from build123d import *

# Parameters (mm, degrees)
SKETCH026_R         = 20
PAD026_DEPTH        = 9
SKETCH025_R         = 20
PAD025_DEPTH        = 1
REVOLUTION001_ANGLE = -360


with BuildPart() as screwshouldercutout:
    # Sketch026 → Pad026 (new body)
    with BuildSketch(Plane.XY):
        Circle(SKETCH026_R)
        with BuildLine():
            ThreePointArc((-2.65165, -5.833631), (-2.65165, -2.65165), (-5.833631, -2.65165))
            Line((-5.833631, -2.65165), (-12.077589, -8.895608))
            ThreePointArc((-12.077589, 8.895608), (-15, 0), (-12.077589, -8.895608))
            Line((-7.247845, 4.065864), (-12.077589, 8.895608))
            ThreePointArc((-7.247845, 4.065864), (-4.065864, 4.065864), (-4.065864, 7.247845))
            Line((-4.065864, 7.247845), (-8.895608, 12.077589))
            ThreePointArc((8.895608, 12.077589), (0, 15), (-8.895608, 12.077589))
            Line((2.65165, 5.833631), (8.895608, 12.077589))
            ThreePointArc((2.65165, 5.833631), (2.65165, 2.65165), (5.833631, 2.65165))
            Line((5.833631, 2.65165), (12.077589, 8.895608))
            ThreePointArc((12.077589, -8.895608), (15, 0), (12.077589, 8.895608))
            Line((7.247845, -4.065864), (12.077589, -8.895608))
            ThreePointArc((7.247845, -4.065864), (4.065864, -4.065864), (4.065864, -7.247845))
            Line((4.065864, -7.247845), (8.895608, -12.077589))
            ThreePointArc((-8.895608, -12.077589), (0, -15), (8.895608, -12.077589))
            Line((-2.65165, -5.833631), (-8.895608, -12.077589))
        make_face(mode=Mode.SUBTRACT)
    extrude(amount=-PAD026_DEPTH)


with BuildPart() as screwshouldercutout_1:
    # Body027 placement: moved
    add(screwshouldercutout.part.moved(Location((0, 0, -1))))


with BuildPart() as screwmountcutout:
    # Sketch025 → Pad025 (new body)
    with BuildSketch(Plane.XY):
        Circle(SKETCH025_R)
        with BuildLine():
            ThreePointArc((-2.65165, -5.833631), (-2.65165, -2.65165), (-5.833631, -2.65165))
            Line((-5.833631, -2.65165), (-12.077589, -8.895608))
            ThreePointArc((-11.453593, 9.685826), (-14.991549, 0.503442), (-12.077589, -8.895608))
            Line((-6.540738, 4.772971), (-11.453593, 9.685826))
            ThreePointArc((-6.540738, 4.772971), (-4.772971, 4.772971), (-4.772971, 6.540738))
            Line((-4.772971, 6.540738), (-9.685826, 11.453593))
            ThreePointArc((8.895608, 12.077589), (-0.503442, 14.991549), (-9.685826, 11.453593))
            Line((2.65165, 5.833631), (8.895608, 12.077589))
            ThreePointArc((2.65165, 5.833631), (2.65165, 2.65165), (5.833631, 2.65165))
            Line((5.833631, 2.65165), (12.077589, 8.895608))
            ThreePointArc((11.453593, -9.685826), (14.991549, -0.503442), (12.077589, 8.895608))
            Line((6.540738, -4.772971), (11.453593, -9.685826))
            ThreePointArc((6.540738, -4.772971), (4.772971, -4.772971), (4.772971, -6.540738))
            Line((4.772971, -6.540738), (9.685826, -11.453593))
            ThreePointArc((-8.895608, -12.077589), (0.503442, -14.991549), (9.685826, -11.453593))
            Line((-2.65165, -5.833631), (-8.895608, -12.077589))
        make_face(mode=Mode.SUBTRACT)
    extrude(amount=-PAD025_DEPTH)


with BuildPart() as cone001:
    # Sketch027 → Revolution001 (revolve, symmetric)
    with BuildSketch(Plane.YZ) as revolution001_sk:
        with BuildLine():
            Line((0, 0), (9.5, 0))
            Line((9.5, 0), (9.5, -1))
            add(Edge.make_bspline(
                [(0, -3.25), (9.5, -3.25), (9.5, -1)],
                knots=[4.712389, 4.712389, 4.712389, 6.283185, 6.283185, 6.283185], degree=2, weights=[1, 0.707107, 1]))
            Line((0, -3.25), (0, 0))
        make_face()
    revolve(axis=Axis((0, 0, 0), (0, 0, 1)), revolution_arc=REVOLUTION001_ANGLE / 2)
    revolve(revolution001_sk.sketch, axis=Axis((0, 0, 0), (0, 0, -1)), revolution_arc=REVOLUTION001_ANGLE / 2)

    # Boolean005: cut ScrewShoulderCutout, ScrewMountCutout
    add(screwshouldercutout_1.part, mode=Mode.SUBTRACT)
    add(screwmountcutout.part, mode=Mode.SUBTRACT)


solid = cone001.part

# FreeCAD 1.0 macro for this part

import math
import FreeCAD as App
import Part
import Sketcher
Q = App.Units.Quantity

doc = App.newDocument("Part")
params = doc.addObject("Spreadsheet::Sheet", "Params")
for row, (alias, value) in enumerate([
    ("sketch1_diameter", "40 mm"),
    ("sketch1_radius", "15 mm"),
    ("sketch1_radius2", "2.25 mm"),
    ("pad1_length", "9 mm"),
    ("sketch2_diameter", "40 mm"),
    ("sketch2_radius", "15.000002 mm"),
    ("sketch2_radius2", "2.25 mm"),
    ("sketch2_radius3", "1.25 mm"),
    ("pad2_length", "1 mm"),
    ("revolution_angle", "180 deg"),
    ("revolution2_angle", "180 deg"),
], start=1):
    params.set(f"A{row}", alias)
    params.set(f"B{row}", "=" + value)
    params.setAlias(f"B{row}", alias)

body = doc.addObject("PartDesign::Body", "Body")

# Sketch on XY plane
sketch1 = body.newObject("Sketcher::SketchObject", "Sketch")
sketch1.AttachmentSupport = (doc.getObject("XY_Plane"), [""])
sketch1.MapMode = "FlatFace"
sketch1.addGeometry([
    Part.Circle(App.Vector(0, 0, 0), App.Vector(0, 0, 1), 20),  # 0
    Part.LineSegment(App.Vector(-8.9, -12.1, 0), App.Vector(-2.7, -5.8, 0)),  # 1
    Part.ArcOfCircle(Part.Circle(App.Vector(-4.2, -4.2, 0), App.Vector(0, 0, 1), 2.3), math.radians(-45), math.radians(135)),  # 2
    Part.LineSegment(App.Vector(-5.8, -2.7, 0), App.Vector(-12.1, -8.9, 0)),  # 3
    Part.ArcOfCircle(Part.Circle(App.Vector(0, 0, 0), App.Vector(0, 0, 1), 15), math.radians(144), math.radians(216)),  # 4
    Part.LineSegment(App.Vector(-12.1, 8.9, 0), App.Vector(-7.2, 4.1, 0)),  # 5
    Part.ArcOfCircle(Part.Circle(App.Vector(-5.7, 5.7, 0), App.Vector(0, 0, 1), 2.3), math.radians(-135), math.radians(45)),  # 6
    Part.LineSegment(App.Vector(-4.1, 7.2, 0), App.Vector(-8.9, 12.1, 0)),  # 7
    Part.ArcOfCircle(Part.Circle(App.Vector(0, 0, 0), App.Vector(0, 0, 1), 15), math.radians(54), math.radians(126)),  # 8
    Part.LineSegment(App.Vector(8.9, 12.1, 0), App.Vector(2.7, 5.8, 0)),  # 9
    Part.ArcOfCircle(Part.Circle(App.Vector(4.2, 4.2, 0), App.Vector(0, 0, 1), 2.3), math.radians(135), math.radians(315)),  # 10
    Part.LineSegment(App.Vector(5.8, 2.7, 0), App.Vector(12.1, 8.9, 0)),  # 11
    Part.ArcOfCircle(Part.Circle(App.Vector(0, 0, 0), App.Vector(0, 0, 1), 15), math.radians(-36), math.radians(36)),  # 12
    Part.LineSegment(App.Vector(12.1, -8.9, 0), App.Vector(7.2, -4.1, 0)),  # 13
    Part.ArcOfCircle(Part.Circle(App.Vector(5.7, -5.7, 0), App.Vector(0, 0, 1), 2.3), math.radians(45), math.radians(225)),  # 14
    Part.LineSegment(App.Vector(4.1, -7.2, 0), App.Vector(8.9, -12.1, 0)),  # 15
    Part.ArcOfCircle(Part.Circle(App.Vector(0, 0, 0), App.Vector(0, 0, 1), 15), math.radians(-126), math.radians(-54)),  # 16
], False)
sketch1.addConstraint([
    Sketcher.Constraint("Tangent", 1, 2, 2, 1),
    Sketcher.Constraint("Tangent", 2, 2, 3, 1),
    Sketcher.Constraint("Coincident", 3, 2, 4, 2),
    Sketcher.Constraint("Coincident", 4, 1, 5, 1),
    Sketcher.Constraint("Tangent", 5, 2, 6, 1),
    Sketcher.Constraint("Tangent", 6, 2, 7, 1),
    Sketcher.Constraint("Coincident", 7, 2, 8, 2),
    Sketcher.Constraint("Coincident", 8, 1, 9, 1),
    Sketcher.Constraint("Tangent", 9, 2, 10, 1),
    Sketcher.Constraint("Tangent", 10, 2, 11, 1),
    Sketcher.Constraint("Coincident", 11, 2, 12, 2),
    Sketcher.Constraint("Coincident", 12, 1, 13, 1),
    Sketcher.Constraint("Tangent", 13, 2, 14, 1),
    Sketcher.Constraint("Tangent", 14, 2, 15, 1),
    Sketcher.Constraint("Coincident", 15, 2, 16, 2),
    Sketcher.Constraint("Coincident", 16, 1, 1, 1),
    Sketcher.Constraint("Coincident", 0, 3, -1, 1),
    Sketcher.Constraint("Coincident", 4, 3, -1, 1),
    Sketcher.Constraint("Coincident", 8, 3, -1, 1),
    Sketcher.Constraint("Coincident", 12, 3, -1, 1),
    Sketcher.Constraint("Coincident", 16, 3, -1, 1),
    Sketcher.Constraint("Equal", 2, 6),
    Sketcher.Constraint("Equal", 4, 8),
    Sketcher.Constraint("Equal", 6, 10),
    Sketcher.Constraint("Equal", 8, 12),
    Sketcher.Constraint("Equal", 10, 14),
    Sketcher.Constraint("Equal", 12, 16),
    Sketcher.Constraint("Symmetric", 2, 3, 10, 3, -1, 1),
    Sketcher.Constraint("Symmetric", 6, 3, 14, 3, -1, 1),
    Sketcher.Constraint("Parallel", 1, 3),
    Sketcher.Constraint("Perpendicular", 3, 5),
    Sketcher.Constraint("Parallel", 5, 7),
    Sketcher.Constraint("Perpendicular", 7, 9),
    Sketcher.Constraint("Parallel", 9, 11),
    Sketcher.Constraint("Perpendicular", 11, 13),
    Sketcher.Constraint("Parallel", 13, 15),
    Sketcher.Constraint("Horizontal", 7, 2, 8, 1),
    Sketcher.Constraint("Equal", 1, 3),
    Sketcher.Constraint("Equal", 5, 7),
    Sketcher.Constraint("Diameter", 0, 40.0),
    Sketcher.Constraint("Radius", 4, 15.0),
    Sketcher.Constraint("Radius", 2, 2.25),
    Sketcher.Constraint("Distance", 1, 8.83029),
    Sketcher.Constraint("Distance", 5, 6.830289),
])
sketch1.setExpression("Constraints[39]", "Params.sketch1_diameter")
sketch1.setExpression("Constraints[40]", "Params.sketch1_radius")
sketch1.setExpression("Constraints[41]", "Params.sketch1_radius2")
pad1 = body.newObject("PartDesign::Pad", "Pad")
pad1.Profile = sketch1
pad1.setExpression("Length", "Params.pad1_length")
pad1.Reversed = True
body2 = doc.addObject("PartDesign::Body", "Body001")
doc.recompute()

body.Placement = App.Placement(App.Vector(0, 0, -1), App.Rotation(App.Vector(0, 0, 1), 0))
boolean = body2.newObject("PartDesign::Boolean", "Boolean")
boolean.Type = "Fuse"
boolean.addObjects([body])
body3 = doc.addObject("PartDesign::Body", "Body002")

# Sketch on XY plane
sketch2 = body3.newObject("Sketcher::SketchObject", "Sketch001")
sketch2.AttachmentSupport = (doc.getObject("XY_Plane002"), [""])
sketch2.MapMode = "FlatFace"
sketch2.addGeometry([
    Part.Circle(App.Vector(0, 0, 0), App.Vector(0, 0, 1), 20),  # 0
    Part.LineSegment(App.Vector(-8.9, -12.1, 0), App.Vector(-2.7, -5.8, 0)),  # 1
    Part.ArcOfCircle(Part.Circle(App.Vector(-4.2, -4.2, 0), App.Vector(0, 0, 1), 2.3), math.radians(-45), math.radians(135)),  # 2
    Part.LineSegment(App.Vector(-5.8, -2.7, 0), App.Vector(-12.1, -8.9, 0)),  # 3
    Part.ArcOfCircle(Part.Circle(App.Vector(0, 0, 0), App.Vector(0, 0, 1), 15), math.radians(140), math.radians(216)),  # 4
    Part.LineSegment(App.Vector(-11.5, 9.7, 0), App.Vector(-6.5, 4.8, 0)),  # 5
    Part.ArcOfCircle(Part.Circle(App.Vector(-5.7, 5.7, 0), App.Vector(0, 0, 1), 1.3), math.radians(-135), math.radians(45)),  # 6
    Part.LineSegment(App.Vector(-4.8, 6.5, 0), App.Vector(-9.7, 11.5, 0)),  # 7
    Part.ArcOfCircle(Part.Circle(App.Vector(0, 0, 0), App.Vector(0, 0, 1), 15), math.radians(54), math.radians(130)),  # 8
    Part.LineSegment(App.Vector(8.9, 12.1, 0), App.Vector(2.7, 5.8, 0)),  # 9
    Part.ArcOfCircle(Part.Circle(App.Vector(4.2, 4.2, 0), App.Vector(0, 0, 1), 2.3), math.radians(135), math.radians(315)),  # 10
    Part.LineSegment(App.Vector(5.8, 2.7, 0), App.Vector(12.1, 8.9, 0)),  # 11
    Part.ArcOfCircle(Part.Circle(App.Vector(0, 0, 0), App.Vector(0, 0, 1), 15), math.radians(-40), math.radians(36)),  # 12
    Part.LineSegment(App.Vector(11.5, -9.7, 0), App.Vector(6.5, -4.8, 0)),  # 13
    Part.ArcOfCircle(Part.Circle(App.Vector(5.7, -5.7, 0), App.Vector(0, 0, 1), 1.3), math.radians(45), math.radians(225)),  # 14
    Part.LineSegment(App.Vector(4.8, -6.5, 0), App.Vector(9.7, -11.5, 0)),  # 15
    Part.ArcOfCircle(Part.Circle(App.Vector(0, 0, 0), App.Vector(0, 0, 1), 15), math.radians(-126), math.radians(-50)),  # 16
], False)
sketch2.addConstraint([
    Sketcher.Constraint("Tangent", 1, 2, 2, 1),
    Sketcher.Constraint("Tangent", 2, 2, 3, 1),
    Sketcher.Constraint("Coincident", 3, 2, 4, 2),
    Sketcher.Constraint("Coincident", 4, 1, 5, 1),
    Sketcher.Constraint("Tangent", 5, 2, 6, 1),
    Sketcher.Constraint("Tangent", 6, 2, 7, 1),
    Sketcher.Constraint("Coincident", 7, 2, 8, 2),
    Sketcher.Constraint("Coincident", 8, 1, 9, 1),
    Sketcher.Constraint("Tangent", 9, 2, 10, 1),
    Sketcher.Constraint("Tangent", 10, 2, 11, 1),
    Sketcher.Constraint("Coincident", 11, 2, 12, 2),
    Sketcher.Constraint("Coincident", 12, 1, 13, 1),
    Sketcher.Constraint("Tangent", 13, 2, 14, 1),
    Sketcher.Constraint("Tangent", 14, 2, 15, 1),
    Sketcher.Constraint("Coincident", 15, 2, 16, 2),
    Sketcher.Constraint("Coincident", 16, 1, 1, 1),
    Sketcher.Constraint("Coincident", 0, 3, -1, 1),
    Sketcher.Constraint("Coincident", 4, 3, -1, 1),
    Sketcher.Constraint("Coincident", 8, 3, -1, 1),
    Sketcher.Constraint("Coincident", 12, 3, -1, 1),
    Sketcher.Constraint("Coincident", 16, 3, -1, 1),
    Sketcher.Constraint("Equal", 4, 8),
    Sketcher.Constraint("Equal", 2, 10),
    Sketcher.Constraint("Equal", 8, 12),
    Sketcher.Constraint("Equal", 6, 14),
    Sketcher.Constraint("Equal", 12, 16),
    Sketcher.Constraint("Symmetric", 2, 3, 10, 3, -1, 1),
    Sketcher.Constraint("Symmetric", 6, 3, 14, 3, -1, 1),
    Sketcher.Constraint("Parallel", 1, 3),
    Sketcher.Constraint("Perpendicular", 3, 5),
    Sketcher.Constraint("Parallel", 5, 7),
    Sketcher.Constraint("Perpendicular", 7, 9),
    Sketcher.Constraint("Parallel", 9, 11),
    Sketcher.Constraint("Perpendicular", 11, 13),
    Sketcher.Constraint("Parallel", 13, 15),
    Sketcher.Constraint("Equal", 1, 3),
    Sketcher.Constraint("Equal", 5, 7),
    Sketcher.Constraint("Diameter", 0, 40.0),
    Sketcher.Constraint("Radius", 4, 15.000002),
    Sketcher.Constraint("Angle", 1, Q("45 deg")),
    Sketcher.Constraint("Radius", 2, 2.25),
    Sketcher.Constraint("Radius", 6, 1.25),
    Sketcher.Constraint("Distance", 1, 8.83029),
    Sketcher.Constraint("DistanceY", -1, 1, 5, 2, 4.772971),
])
sketch2.setExpression("Constraints[37]", "Params.sketch2_diameter")
sketch2.setExpression("Constraints[38]", "Params.sketch2_radius")
sketch2.setExpression("Constraints[40]", "Params.sketch2_radius2")
sketch2.setExpression("Constraints[41]", "Params.sketch2_radius3")
pad2 = body3.newObject("PartDesign::Pad", "Pad001")
pad2.Profile = sketch2
pad2.setExpression("Length", "Params.pad2_length")
pad2.Reversed = True
body4 = doc.addObject("PartDesign::Body", "Body003")

# Sketch on YZ plane
sketch3 = body4.newObject("Sketcher::SketchObject", "Sketch002")
sketch3.AttachmentSupport = (doc.getObject("YZ_Plane003"), [""])
sketch3.MapMode = "FlatFace"
sketch3.addGeometry([
    Part.LineSegment(App.Vector(9.5, 0, 0), App.Vector(0, 0, 0)),
    Part.LineSegment(App.Vector(0, 0, 0), App.Vector(0, -3.25, 0)),
    Part.BSplineCurve([App.Vector(0, -3.25, 0), App.Vector(9.5, -3.25, 0), App.Vector(9.5, -1, 0)], [3, 3], [4.712389, 6.283185], False, 2, [1, 0.707107, 1], False),
    Part.LineSegment(App.Vector(9.5, -1, 0), App.Vector(9.5, 0, 0)),
], False)
sketch3.addConstraint([
    Sketcher.Constraint("Block", 2),
    Sketcher.Constraint("Coincident", 0, 2, 1, 1),
    Sketcher.Constraint("Coincident", 1, 2, 2, 1),
    Sketcher.Constraint("Coincident", 2, 2, 3, 1),
    Sketcher.Constraint("Coincident", 3, 2, 0, 1),
    Sketcher.Constraint("Horizontal", 0),
    Sketcher.Constraint("Vertical", 1),
    Sketcher.Constraint("Vertical", 3),
    Sketcher.Constraint("PointOnObject", 3, 2, -1),
])
revolution = body4.newObject("PartDesign::Revolution", "Revolution")
revolution.Profile = sketch3
revolution.ReferenceAxis = (sketch3, ["V_Axis"])
revolution.setExpression("Angle", "Params.revolution_angle")
revolution.Reversed = True

# Sketch on YZ plane
sketch4 = body4.newObject("Sketcher::SketchObject", "Sketch003")
sketch4.AttachmentSupport = (doc.getObject("YZ_Plane003"), [""])
sketch4.MapMode = "FlatFace"
sketch4.addGeometry([
    Part.LineSegment(App.Vector(9.5, 0, 0), App.Vector(0, 0, 0)),
    Part.LineSegment(App.Vector(0, 0, 0), App.Vector(0, -3.25, 0)),
    Part.BSplineCurve([App.Vector(0, -3.25, 0), App.Vector(9.5, -3.25, 0), App.Vector(9.5, -1, 0)], [3, 3], [4.712389, 6.283185], False, 2, [1, 0.707107, 1], False),
    Part.LineSegment(App.Vector(9.5, -1, 0), App.Vector(9.5, 0, 0)),
], False)
sketch4.addConstraint([
    Sketcher.Constraint("Block", 2),
    Sketcher.Constraint("Coincident", 0, 2, 1, 1),
    Sketcher.Constraint("Coincident", 1, 2, 2, 1),
    Sketcher.Constraint("Coincident", 2, 2, 3, 1),
    Sketcher.Constraint("Coincident", 3, 2, 0, 1),
    Sketcher.Constraint("Horizontal", 0),
    Sketcher.Constraint("Vertical", 1),
    Sketcher.Constraint("Vertical", 3),
    Sketcher.Constraint("PointOnObject", 3, 2, -1),
])
revolution2 = body4.newObject("PartDesign::Revolution", "Revolution001")
revolution2.Profile = sketch4
revolution2.ReferenceAxis = (sketch4, ["V_Axis"])
revolution2.setExpression("Angle", "Params.revolution2_angle")
doc.recompute()

boolean2 = body4.newObject("PartDesign::Boolean", "Boolean001")
boolean2.Type = "Cut"
boolean2.addObjects([body2])
doc.recompute()

boolean3 = body4.newObject("PartDesign::Boolean", "Boolean002")
boolean3.Type = "Cut"
boolean3.addObjects([body3])

doc.recompute()
